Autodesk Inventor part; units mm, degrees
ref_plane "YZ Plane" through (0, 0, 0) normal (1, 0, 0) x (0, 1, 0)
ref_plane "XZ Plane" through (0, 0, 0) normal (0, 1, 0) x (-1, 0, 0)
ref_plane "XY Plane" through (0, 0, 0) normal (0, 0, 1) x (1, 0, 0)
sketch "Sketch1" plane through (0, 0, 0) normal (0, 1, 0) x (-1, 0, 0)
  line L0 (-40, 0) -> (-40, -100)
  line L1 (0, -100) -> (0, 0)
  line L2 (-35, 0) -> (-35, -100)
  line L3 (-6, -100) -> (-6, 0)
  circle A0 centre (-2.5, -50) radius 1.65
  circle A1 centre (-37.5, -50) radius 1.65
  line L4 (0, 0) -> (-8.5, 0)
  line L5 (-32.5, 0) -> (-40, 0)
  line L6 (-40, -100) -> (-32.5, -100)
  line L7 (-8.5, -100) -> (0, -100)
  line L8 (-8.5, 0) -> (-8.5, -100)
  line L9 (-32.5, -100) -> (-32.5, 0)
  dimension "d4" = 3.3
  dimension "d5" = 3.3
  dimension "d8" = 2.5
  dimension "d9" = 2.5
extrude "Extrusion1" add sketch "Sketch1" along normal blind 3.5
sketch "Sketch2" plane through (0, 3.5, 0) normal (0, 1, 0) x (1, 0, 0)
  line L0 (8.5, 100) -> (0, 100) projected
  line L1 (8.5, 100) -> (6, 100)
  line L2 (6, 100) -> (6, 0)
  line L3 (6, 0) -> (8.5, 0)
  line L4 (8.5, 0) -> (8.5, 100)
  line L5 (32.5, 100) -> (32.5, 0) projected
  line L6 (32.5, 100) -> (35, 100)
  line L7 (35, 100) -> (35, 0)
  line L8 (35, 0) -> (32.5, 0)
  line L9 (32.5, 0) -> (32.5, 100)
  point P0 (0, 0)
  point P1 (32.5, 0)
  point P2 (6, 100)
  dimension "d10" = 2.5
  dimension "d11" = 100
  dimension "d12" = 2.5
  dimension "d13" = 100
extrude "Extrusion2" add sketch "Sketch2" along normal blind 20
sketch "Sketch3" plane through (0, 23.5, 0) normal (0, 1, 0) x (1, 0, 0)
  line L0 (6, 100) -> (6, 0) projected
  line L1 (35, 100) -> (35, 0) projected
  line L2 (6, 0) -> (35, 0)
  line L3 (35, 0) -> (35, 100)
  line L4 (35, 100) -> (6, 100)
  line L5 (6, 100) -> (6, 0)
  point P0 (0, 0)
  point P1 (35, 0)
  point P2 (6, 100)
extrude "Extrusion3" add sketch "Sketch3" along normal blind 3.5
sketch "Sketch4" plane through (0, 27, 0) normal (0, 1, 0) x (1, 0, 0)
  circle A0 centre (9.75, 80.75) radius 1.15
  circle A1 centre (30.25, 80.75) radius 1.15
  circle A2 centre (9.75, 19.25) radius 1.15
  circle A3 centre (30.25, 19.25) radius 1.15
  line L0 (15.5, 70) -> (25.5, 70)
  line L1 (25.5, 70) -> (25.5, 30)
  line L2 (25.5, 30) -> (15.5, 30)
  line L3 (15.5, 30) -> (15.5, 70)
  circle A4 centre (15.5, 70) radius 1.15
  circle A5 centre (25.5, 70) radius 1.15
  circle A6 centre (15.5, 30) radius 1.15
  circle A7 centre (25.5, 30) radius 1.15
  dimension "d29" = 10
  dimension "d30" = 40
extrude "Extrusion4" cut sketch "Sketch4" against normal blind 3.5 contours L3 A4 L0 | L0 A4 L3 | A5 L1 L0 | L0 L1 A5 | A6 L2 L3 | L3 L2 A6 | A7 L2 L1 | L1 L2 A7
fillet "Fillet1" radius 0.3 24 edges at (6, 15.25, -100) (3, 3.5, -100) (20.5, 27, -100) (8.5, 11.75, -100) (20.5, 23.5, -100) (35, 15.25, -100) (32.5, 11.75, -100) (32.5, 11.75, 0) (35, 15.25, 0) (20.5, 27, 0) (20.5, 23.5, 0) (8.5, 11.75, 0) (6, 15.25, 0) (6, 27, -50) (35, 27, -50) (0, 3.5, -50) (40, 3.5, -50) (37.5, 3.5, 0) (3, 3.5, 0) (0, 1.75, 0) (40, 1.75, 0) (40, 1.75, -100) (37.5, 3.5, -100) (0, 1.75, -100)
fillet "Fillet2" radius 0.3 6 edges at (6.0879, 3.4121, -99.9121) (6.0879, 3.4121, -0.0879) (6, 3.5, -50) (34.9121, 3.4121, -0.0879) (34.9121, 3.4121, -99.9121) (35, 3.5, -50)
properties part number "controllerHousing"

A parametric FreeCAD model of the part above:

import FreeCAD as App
import Part
import Sketcher
Q = App.Units.Quantity


def edges_at(feature, points):
    """Names of the edges that pass closest to the given points."""
    edges = feature.Shape.Edges
    near = lambda p: min(range(len(edges)), key=lambda i: edges[i].distToShape(Part.Vertex(*p))[0])
    return sorted({f"Edge{near(p) + 1}" for p in points})

doc = App.newDocument("Part")
body = doc.addObject("PartDesign::Body", "Body")
body.AllowCompound = True

sketch1 = body.newObject("Sketcher::SketchObject", "Sketch")
sketch1.AttachmentSupport = (doc.getObject("XZ_Plane"), [""])
sketch1.MapMode = "FlatFace"
sketch1.addGeometry(Part.LineSegment(App.Vector(40, 0, 0), App.Vector(40, -100, 0)), False)
sketch1.addGeometry(Part.LineSegment(App.Vector(40, -100, 0), App.Vector(32.5, -100, 0)), False)
sketch1.addGeometry(Part.LineSegment(App.Vector(32.5, -100, 0), App.Vector(32.5, 0, 0)), False)
sketch1.addGeometry(Part.LineSegment(App.Vector(32.5, 0, 0), App.Vector(40, 0, 0)), False)
sketch1.addGeometry(Part.Circle(App.Vector(37.5, -50, 0), App.Vector(0, 0, 1), 1.65), False)
sketch1.addGeometry(Part.LineSegment(App.Vector(0, -100, 0), App.Vector(0, 0, 0)), False)
sketch1.addGeometry(Part.LineSegment(App.Vector(0, 0, 0), App.Vector(8.5, 0, 0)), False)
sketch1.addGeometry(Part.LineSegment(App.Vector(8.5, 0, 0), App.Vector(8.5, -100, 0)), False)
sketch1.addGeometry(Part.LineSegment(App.Vector(8.5, -100, 0), App.Vector(0, -100, 0)), False)
sketch1.addGeometry(Part.Circle(App.Vector(2.5, -50, 0), App.Vector(0, 0, 1), 1.65), False)
sketch1.addConstraint(Sketcher.Constraint("Coincident", 0, 2, 1, 1))
sketch1.addConstraint(Sketcher.Constraint("Coincident", 1, 2, 2, 1))
sketch1.addConstraint(Sketcher.Constraint("Coincident", 2, 2, 3, 1))
sketch1.addConstraint(Sketcher.Constraint("Coincident", 3, 2, 0, 1))
sketch1.addConstraint(Sketcher.Constraint("Coincident", 5, 2, 6, 1))
sketch1.addConstraint(Sketcher.Constraint("Coincident", 6, 2, 7, 1))
sketch1.addConstraint(Sketcher.Constraint("Coincident", 7, 2, 8, 1))
sketch1.addConstraint(Sketcher.Constraint("Coincident", 8, 2, 5, 1))
sketch1.addConstraint(Sketcher.Constraint("Vertical", 0))
sketch1.addConstraint(Sketcher.Constraint("Horizontal", 1))
sketch1.addConstraint(Sketcher.Constraint("Vertical", 2))
sketch1.addConstraint(Sketcher.Constraint("Horizontal", 3))
sketch1.addConstraint(Sketcher.Constraint("Vertical", 5))
sketch1.addConstraint(Sketcher.Constraint("Horizontal", 6))
sketch1.addConstraint(Sketcher.Constraint("Vertical", 7))
sketch1.addConstraint(Sketcher.Constraint("Horizontal", 8))
sketch1.addConstraint(Sketcher.Constraint("Coincident", 5, 2, -1, 1))
sketch1.addConstraint(Sketcher.Constraint("Equal", 4, 9))
sketch1.addConstraint(Sketcher.Constraint("PointOnObject", 2, 2, -1))
sketch1.addConstraint(Sketcher.Constraint("Horizontal", 4, 3, 9, 3))
sketch1.addConstraint(Sketcher.Constraint("Horizontal", 1, 2, 7, 2))
sketch1.addConstraint(Sketcher.Constraint("Diameter", 4, Q("3.3 mm")))
sketch1.addConstraint(Sketcher.Constraint("DistanceX", -1, 1, 9, 3, Q("2.5 mm")))
sketch1.addConstraint(Sketcher.Constraint("DistanceX", 4, 3, 0, 2, Q("2.5 mm")))
sketch1.addConstraint(Sketcher.Constraint("DistanceY", 0, 2, 0, 1, Q("100 mm")))
sketch1.addConstraint(Sketcher.Constraint("DistanceX", 1, 2, 1, 1, Q("7.5 mm")))
sketch1.addConstraint(Sketcher.Constraint("DistanceX", 6, 1, 6, 2, Q("8.5 mm")))
sketch1.addConstraint(Sketcher.Constraint("DistanceY", 4, 3, -1, 1, Q("50 mm")))
sketch1.addConstraint(Sketcher.Constraint("DistanceX", -1, 1, 0, 2, Q("40 mm")))
pad1 = body.newObject("PartDesign::Pad", "Pad")
pad1.Profile = sketch1
pad1.Length = 3.5
pad1.Reversed = True

sketch2 = body.newObject("Sketcher::SketchObject", "Sketch001")
sketch2.AttachmentSupport = (doc.getObject("XZ_Plane"), [""])
sketch2.MapMode = "FlatFace"
sketch2.AttachmentOffset = App.Placement(App.Vector(0, 0, -3.5), App.Rotation())
sketch2.addGeometry(Part.LineSegment(App.Vector(8.5, 0, 0), App.Vector(8.5, -100, 0)), False)
sketch2.addGeometry(Part.LineSegment(App.Vector(8.5, -100, 0), App.Vector(6, -100, 0)), False)
sketch2.addGeometry(Part.LineSegment(App.Vector(6, -100, 0), App.Vector(6, 0, 0)), False)
sketch2.addGeometry(Part.LineSegment(App.Vector(6, 0, 0), App.Vector(8.5, 0, 0)), False)
sketch2.addGeometry(Part.LineSegment(App.Vector(35, -100, 0), App.Vector(32.5, -100, 0)), False)
sketch2.addGeometry(Part.LineSegment(App.Vector(32.5, -100, 0), App.Vector(32.5, 0, 0)), False)
sketch2.addGeometry(Part.LineSegment(App.Vector(32.5, 0, 0), App.Vector(35, 0, 0)), False)
sketch2.addGeometry(Part.LineSegment(App.Vector(35, 0, 0), App.Vector(35, -100, 0)), False)
sketch2.addConstraint(Sketcher.Constraint("Coincident", 0, 2, 1, 1))
sketch2.addConstraint(Sketcher.Constraint("Coincident", 1, 2, 2, 1))
sketch2.addConstraint(Sketcher.Constraint("Coincident", 2, 2, 3, 1))
sketch2.addConstraint(Sketcher.Constraint("Coincident", 3, 2, 0, 1))
sketch2.addConstraint(Sketcher.Constraint("Coincident", 4, 2, 5, 1))
sketch2.addConstraint(Sketcher.Constraint("Coincident", 5, 2, 6, 1))
sketch2.addConstraint(Sketcher.Constraint("Coincident", 6, 2, 7, 1))
sketch2.addConstraint(Sketcher.Constraint("Coincident", 7, 2, 4, 1))
sketch2.addConstraint(Sketcher.Constraint("Vertical", 0))
sketch2.addConstraint(Sketcher.Constraint("Horizontal", 1))
sketch2.addConstraint(Sketcher.Constraint("Vertical", 2))
sketch2.addConstraint(Sketcher.Constraint("Horizontal", 3))
sketch2.addConstraint(Sketcher.Constraint("Horizontal", 4))
sketch2.addConstraint(Sketcher.Constraint("Vertical", 5))
sketch2.addConstraint(Sketcher.Constraint("Horizontal", 6))
sketch2.addConstraint(Sketcher.Constraint("Vertical", 7))
sketch2.addConstraint(Sketcher.Constraint("PointOnObject", 2, 2, -1))
sketch2.addConstraint(Sketcher.Constraint("PointOnObject", 5, 2, -1))
sketch2.addConstraint(Sketcher.Constraint("Horizontal", 1, 2, 4, 2))
sketch2.addConstraint(Sketcher.Constraint("Equal", 3, 4))
sketch2.addConstraint(Sketcher.Constraint("DistanceY", 0, 2, 0, 1, Q("100 mm")))
sketch2.addConstraint(Sketcher.Constraint("DistanceX", 1, 2, 1, 1, Q("2.5 mm")))
sketch2.addConstraint(Sketcher.Constraint("DistanceX", -1, 1, 1, 2, Q("6 mm")))
sketch2.addConstraint(Sketcher.Constraint("DistanceX", -1, 1, 6, 2, Q("35 mm")))
pad2 = body.newObject("PartDesign::Pad", "Pad001")
pad2.Profile = sketch2
pad2.Length = 20
pad2.Reversed = True

sketch3 = body.newObject("Sketcher::SketchObject", "Sketch002")
sketch3.AttachmentSupport = (doc.getObject("XZ_Plane"), [""])
sketch3.MapMode = "FlatFace"
sketch3.AttachmentOffset = App.Placement(App.Vector(0, 0, -23.5), App.Rotation())
sketch3.addGeometry(Part.LineSegment(App.Vector(35, -100, 0), App.Vector(6, -100, 0)), False)
sketch3.addGeometry(Part.LineSegment(App.Vector(6, -100, 0), App.Vector(6, 0, 0)), False)
sketch3.addGeometry(Part.LineSegment(App.Vector(6, 0, 0), App.Vector(35, 0, 0)), False)
sketch3.addGeometry(Part.LineSegment(App.Vector(35, 0, 0), App.Vector(35, -100, 0)), False)
sketch3.addConstraint(Sketcher.Constraint("Coincident", 0, 2, 1, 1))
sketch3.addConstraint(Sketcher.Constraint("Coincident", 1, 2, 2, 1))
sketch3.addConstraint(Sketcher.Constraint("Coincident", 2, 2, 3, 1))
sketch3.addConstraint(Sketcher.Constraint("Coincident", 3, 2, 0, 1))
sketch3.addConstraint(Sketcher.Constraint("Horizontal", 0))
sketch3.addConstraint(Sketcher.Constraint("Vertical", 1))
sketch3.addConstraint(Sketcher.Constraint("Horizontal", 2))
sketch3.addConstraint(Sketcher.Constraint("Vertical", 3))
sketch3.addConstraint(Sketcher.Constraint("PointOnObject", 1, 2, -1))
sketch3.addConstraint(Sketcher.Constraint("DistanceX", 0, 2, 0, 1, Q("29 mm")))
sketch3.addConstraint(Sketcher.Constraint("DistanceY", 1, 1, 1, 2, Q("100 mm")))
sketch3.addConstraint(Sketcher.Constraint("DistanceX", -1, 1, 0, 2, Q("6 mm")))
pad3 = body.newObject("PartDesign::Pad", "Pad002")
pad3.Profile = sketch3
pad3.Length = 3.5
pad3.Reversed = True

sketch4 = body.newObject("Sketcher::SketchObject", "Sketch003")
sketch4.AttachmentSupport = (doc.getObject("XZ_Plane"), [""])
sketch4.MapMode = "FlatFace"
sketch4.AttachmentOffset = App.Placement(App.Vector(0, 0, -27), App.Rotation())
sketch4.addGeometry(Part.Circle(App.Vector(15.5, -70, 0), App.Vector(0, 0, 1), 1.15), False)
sketch4.addGeometry(Part.Circle(App.Vector(25.5, -70, 0), App.Vector(0, 0, 1), 1.15), False)
sketch4.addGeometry(Part.Circle(App.Vector(15.5, -30, 0), App.Vector(0, 0, 1), 1.15), False)
sketch4.addGeometry(Part.Circle(App.Vector(25.5, -30, 0), App.Vector(0, 0, 1), 1.15), False)
sketch4.addConstraint(Sketcher.Constraint("Equal", 0, 1))
sketch4.addConstraint(Sketcher.Constraint("Equal", 1, 2))
sketch4.addConstraint(Sketcher.Constraint("Equal", 2, 3))
sketch4.addConstraint(Sketcher.Constraint("Horizontal", 0, 3, 1, 3))
sketch4.addConstraint(Sketcher.Constraint("Horizontal", 2, 3, 3, 3))
sketch4.addConstraint(Sketcher.Constraint("Vertical", 0, 3, 2, 3))
sketch4.addConstraint(Sketcher.Constraint("Vertical", 1, 3, 3, 3))
sketch4.addConstraint(Sketcher.Constraint("DistanceX", 0, 3, 1, 3, Q("10 mm")))
sketch4.addConstraint(Sketcher.Constraint("DistanceY", 0, 3, 2, 3, Q("40 mm")))
sketch4.addConstraint(Sketcher.Constraint("Diameter", 0, Q("2.3 mm")))
sketch4.addConstraint(Sketcher.Constraint("DistanceY", 0, 3, -1, 1, Q("70 mm")))
sketch4.addConstraint(Sketcher.Constraint("DistanceX", -1, 1, 0, 3, Q("15.5 mm")))
pocket1 = body.newObject("PartDesign::Pocket", "Pocket")
pocket1.Profile = sketch4
pocket1.Length = 3.5
pocket1.Reversed = True
doc.recompute()

fillet = body.newObject("PartDesign::Fillet", "Fillet")
fillet.Base = (pocket1, edges_at(pocket1, [
    (6, 15.25, -100),
    (3, 3.5, -100),
    (20.5, 27, -100),
    (8.5, 11.75, -100),
    (20.5, 23.5, -100),
    (35, 15.25, -100),
    (32.5, 11.75, -100),
    (32.5, 11.75, 0),
    (35, 15.25, 0),
    (20.5, 27, 0),
    (20.5, 23.5, 0),
    (8.5, 11.75, 0),
    (6, 15.25, 0),
    (6, 27, -50),
    (35, 27, -50),
    (0, 3.5, -50),
    (40, 3.5, -50),
    (37.5, 3.5, 0),
    (3, 3.5, 0),
    (0, 1.75, 0),
    (40, 1.75, 0),
    (40, 1.75, -100),
    (37.5, 3.5, -100),
    (0, 1.75, -100),
]))
fillet.Radius = 0.3
doc.recompute()

fillet2 = body.newObject("PartDesign::Fillet", "Fillet001")
fillet2.Base = (fillet, edges_at(fillet, [
    (6.088, 3.412, -99.912),
    (6.088, 3.412, -0.088),
    (6, 3.5, -50),
    (34.912, 3.412, -0.088),
    (34.912, 3.412, -99.912),
    (35, 3.5, -50),
]))
fillet2.Radius = 0.3

doc.recompute()
